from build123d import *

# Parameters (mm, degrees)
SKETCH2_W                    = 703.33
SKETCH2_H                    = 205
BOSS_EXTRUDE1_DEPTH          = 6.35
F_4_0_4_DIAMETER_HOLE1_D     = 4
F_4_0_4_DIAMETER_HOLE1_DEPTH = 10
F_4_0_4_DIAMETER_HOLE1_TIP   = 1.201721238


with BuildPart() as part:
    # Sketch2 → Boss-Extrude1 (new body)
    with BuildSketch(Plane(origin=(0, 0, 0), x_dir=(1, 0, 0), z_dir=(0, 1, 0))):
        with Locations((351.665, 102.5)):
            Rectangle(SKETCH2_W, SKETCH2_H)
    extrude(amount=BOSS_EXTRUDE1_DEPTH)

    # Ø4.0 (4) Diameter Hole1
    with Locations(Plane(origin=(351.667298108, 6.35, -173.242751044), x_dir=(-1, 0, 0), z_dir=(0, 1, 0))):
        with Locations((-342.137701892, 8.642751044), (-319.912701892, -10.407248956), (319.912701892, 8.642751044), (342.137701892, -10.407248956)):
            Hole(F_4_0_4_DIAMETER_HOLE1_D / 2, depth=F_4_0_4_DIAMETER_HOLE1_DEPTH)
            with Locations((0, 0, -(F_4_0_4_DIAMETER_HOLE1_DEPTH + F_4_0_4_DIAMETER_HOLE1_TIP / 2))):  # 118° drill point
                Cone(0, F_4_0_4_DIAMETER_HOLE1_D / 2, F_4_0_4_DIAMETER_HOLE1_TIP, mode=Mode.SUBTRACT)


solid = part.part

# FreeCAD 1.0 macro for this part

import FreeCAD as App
import Part
import Sketcher

V = App.Vector


def add_polygon(sketch, points):
    """Adds a closed chain of lines whose ends are joined by coincident constraints."""
    first, n = sketch.GeometryCount, len(points)
    for a, b in zip(points, points[1:] + points[:1]):
        sketch.addGeometry(Part.LineSegment(App.Vector(*a, 0), App.Vector(*b, 0)), False)
    for i in range(n):
        sketch.addConstraint(Sketcher.Constraint("Coincident", first + i, 2, first + (i + 1) % n, 1))

doc = App.newDocument("Part")
body = doc.addObject("PartDesign::Body", "Body")

# Sketch on XZ plane
sketch1 = body.newObject("Sketcher::SketchObject", "Sketch")
sketch1.AttachmentSupport = (doc.getObject("XZ_Plane"), [""])
sketch1.MapMode = "FlatFace"
add_polygon(sketch1, [(0, -205), (0, 0), (703, 0), (703, -205)])  # lines 0-3
sketch1.addConstraint([
    Sketcher.Constraint("Vertical", 0),
    Sketcher.Constraint("Horizontal", 1),
    Sketcher.Constraint("Vertical", 2),
    Sketcher.Constraint("Horizontal", 3),
    Sketcher.Constraint("Coincident", 0, 2, -1, 1),
    Sketcher.Constraint("DistanceY", 0, 1, 0, 2, 205.0),
    Sketcher.Constraint("DistanceX", 1, 1, 1, 2, 703.33),
])
pad1 = body.newObject("PartDesign::Pad", "Pad")
pad1.Profile = sketch1
pad1.Length = 6.35
pad1.Reversed = True

# Sketch on XZ plane
sketch2 = body.newObject("Sketcher::SketchObject", "Sketch001")
sketch2.AttachmentSupport = (doc.getObject("XZ_Plane"), [""])
sketch2.MapMode = "FlatFace"
sketch2.AttachmentOffset = App.Placement(V(0, 0, -6.35), App.Rotation())
sketch2.addGeometry([
    Part.Circle(V(693.8, -164.6, 0), V(0, 0, 1), 2),
    Part.Circle(V(671.6, -183.7, 0), V(0, 0, 1), 2),
    Part.Circle(V(31.8, -164.6, 0), V(0, 0, 1), 2),
    Part.Circle(V(9.5, -183.7, 0), V(0, 0, 1), 2),
], False)
sketch2.addConstraint([
    Sketcher.Constraint("Equal", 0, 1),
    Sketcher.Constraint("Equal", 1, 2),
    Sketcher.Constraint("Equal", 2, 3),
    Sketcher.Constraint("Horizontal", 0, 3, 2, 3),
    Sketcher.Constraint("Horizontal", 1, 3, 3, 3),
    Sketcher.Constraint("Diameter", 0, 4.0),
    Sketcher.Constraint("DistanceY", 0, 3, -1, 1, 164.6),
    Sketcher.Constraint("DistanceX", -1, 1, 1, 3, 671.58),
    Sketcher.Constraint("DistanceY", 1, 3, -1, 1, 183.65),
    Sketcher.Constraint("DistanceX", -1, 1, 0, 3, 693.805),
    Sketcher.Constraint("DistanceX", 3, 3, 2, 3, 22.225),
    Sketcher.Constraint("DistanceX", -1, 1, 2, 3, 31.754596),
])
doc.recompute()
hole = body.newObject("PartDesign::Hole", "Hole")
hole.Profile = sketch2
hole.ThreadType = "None"
hole.Diameter = 4
hole.DepthType = "Dimension"
hole.Depth = 10
hole.DrillPoint = "Angled"
hole.DrillPointAngle = 118
hole.Reversed = True

doc.recompute()
